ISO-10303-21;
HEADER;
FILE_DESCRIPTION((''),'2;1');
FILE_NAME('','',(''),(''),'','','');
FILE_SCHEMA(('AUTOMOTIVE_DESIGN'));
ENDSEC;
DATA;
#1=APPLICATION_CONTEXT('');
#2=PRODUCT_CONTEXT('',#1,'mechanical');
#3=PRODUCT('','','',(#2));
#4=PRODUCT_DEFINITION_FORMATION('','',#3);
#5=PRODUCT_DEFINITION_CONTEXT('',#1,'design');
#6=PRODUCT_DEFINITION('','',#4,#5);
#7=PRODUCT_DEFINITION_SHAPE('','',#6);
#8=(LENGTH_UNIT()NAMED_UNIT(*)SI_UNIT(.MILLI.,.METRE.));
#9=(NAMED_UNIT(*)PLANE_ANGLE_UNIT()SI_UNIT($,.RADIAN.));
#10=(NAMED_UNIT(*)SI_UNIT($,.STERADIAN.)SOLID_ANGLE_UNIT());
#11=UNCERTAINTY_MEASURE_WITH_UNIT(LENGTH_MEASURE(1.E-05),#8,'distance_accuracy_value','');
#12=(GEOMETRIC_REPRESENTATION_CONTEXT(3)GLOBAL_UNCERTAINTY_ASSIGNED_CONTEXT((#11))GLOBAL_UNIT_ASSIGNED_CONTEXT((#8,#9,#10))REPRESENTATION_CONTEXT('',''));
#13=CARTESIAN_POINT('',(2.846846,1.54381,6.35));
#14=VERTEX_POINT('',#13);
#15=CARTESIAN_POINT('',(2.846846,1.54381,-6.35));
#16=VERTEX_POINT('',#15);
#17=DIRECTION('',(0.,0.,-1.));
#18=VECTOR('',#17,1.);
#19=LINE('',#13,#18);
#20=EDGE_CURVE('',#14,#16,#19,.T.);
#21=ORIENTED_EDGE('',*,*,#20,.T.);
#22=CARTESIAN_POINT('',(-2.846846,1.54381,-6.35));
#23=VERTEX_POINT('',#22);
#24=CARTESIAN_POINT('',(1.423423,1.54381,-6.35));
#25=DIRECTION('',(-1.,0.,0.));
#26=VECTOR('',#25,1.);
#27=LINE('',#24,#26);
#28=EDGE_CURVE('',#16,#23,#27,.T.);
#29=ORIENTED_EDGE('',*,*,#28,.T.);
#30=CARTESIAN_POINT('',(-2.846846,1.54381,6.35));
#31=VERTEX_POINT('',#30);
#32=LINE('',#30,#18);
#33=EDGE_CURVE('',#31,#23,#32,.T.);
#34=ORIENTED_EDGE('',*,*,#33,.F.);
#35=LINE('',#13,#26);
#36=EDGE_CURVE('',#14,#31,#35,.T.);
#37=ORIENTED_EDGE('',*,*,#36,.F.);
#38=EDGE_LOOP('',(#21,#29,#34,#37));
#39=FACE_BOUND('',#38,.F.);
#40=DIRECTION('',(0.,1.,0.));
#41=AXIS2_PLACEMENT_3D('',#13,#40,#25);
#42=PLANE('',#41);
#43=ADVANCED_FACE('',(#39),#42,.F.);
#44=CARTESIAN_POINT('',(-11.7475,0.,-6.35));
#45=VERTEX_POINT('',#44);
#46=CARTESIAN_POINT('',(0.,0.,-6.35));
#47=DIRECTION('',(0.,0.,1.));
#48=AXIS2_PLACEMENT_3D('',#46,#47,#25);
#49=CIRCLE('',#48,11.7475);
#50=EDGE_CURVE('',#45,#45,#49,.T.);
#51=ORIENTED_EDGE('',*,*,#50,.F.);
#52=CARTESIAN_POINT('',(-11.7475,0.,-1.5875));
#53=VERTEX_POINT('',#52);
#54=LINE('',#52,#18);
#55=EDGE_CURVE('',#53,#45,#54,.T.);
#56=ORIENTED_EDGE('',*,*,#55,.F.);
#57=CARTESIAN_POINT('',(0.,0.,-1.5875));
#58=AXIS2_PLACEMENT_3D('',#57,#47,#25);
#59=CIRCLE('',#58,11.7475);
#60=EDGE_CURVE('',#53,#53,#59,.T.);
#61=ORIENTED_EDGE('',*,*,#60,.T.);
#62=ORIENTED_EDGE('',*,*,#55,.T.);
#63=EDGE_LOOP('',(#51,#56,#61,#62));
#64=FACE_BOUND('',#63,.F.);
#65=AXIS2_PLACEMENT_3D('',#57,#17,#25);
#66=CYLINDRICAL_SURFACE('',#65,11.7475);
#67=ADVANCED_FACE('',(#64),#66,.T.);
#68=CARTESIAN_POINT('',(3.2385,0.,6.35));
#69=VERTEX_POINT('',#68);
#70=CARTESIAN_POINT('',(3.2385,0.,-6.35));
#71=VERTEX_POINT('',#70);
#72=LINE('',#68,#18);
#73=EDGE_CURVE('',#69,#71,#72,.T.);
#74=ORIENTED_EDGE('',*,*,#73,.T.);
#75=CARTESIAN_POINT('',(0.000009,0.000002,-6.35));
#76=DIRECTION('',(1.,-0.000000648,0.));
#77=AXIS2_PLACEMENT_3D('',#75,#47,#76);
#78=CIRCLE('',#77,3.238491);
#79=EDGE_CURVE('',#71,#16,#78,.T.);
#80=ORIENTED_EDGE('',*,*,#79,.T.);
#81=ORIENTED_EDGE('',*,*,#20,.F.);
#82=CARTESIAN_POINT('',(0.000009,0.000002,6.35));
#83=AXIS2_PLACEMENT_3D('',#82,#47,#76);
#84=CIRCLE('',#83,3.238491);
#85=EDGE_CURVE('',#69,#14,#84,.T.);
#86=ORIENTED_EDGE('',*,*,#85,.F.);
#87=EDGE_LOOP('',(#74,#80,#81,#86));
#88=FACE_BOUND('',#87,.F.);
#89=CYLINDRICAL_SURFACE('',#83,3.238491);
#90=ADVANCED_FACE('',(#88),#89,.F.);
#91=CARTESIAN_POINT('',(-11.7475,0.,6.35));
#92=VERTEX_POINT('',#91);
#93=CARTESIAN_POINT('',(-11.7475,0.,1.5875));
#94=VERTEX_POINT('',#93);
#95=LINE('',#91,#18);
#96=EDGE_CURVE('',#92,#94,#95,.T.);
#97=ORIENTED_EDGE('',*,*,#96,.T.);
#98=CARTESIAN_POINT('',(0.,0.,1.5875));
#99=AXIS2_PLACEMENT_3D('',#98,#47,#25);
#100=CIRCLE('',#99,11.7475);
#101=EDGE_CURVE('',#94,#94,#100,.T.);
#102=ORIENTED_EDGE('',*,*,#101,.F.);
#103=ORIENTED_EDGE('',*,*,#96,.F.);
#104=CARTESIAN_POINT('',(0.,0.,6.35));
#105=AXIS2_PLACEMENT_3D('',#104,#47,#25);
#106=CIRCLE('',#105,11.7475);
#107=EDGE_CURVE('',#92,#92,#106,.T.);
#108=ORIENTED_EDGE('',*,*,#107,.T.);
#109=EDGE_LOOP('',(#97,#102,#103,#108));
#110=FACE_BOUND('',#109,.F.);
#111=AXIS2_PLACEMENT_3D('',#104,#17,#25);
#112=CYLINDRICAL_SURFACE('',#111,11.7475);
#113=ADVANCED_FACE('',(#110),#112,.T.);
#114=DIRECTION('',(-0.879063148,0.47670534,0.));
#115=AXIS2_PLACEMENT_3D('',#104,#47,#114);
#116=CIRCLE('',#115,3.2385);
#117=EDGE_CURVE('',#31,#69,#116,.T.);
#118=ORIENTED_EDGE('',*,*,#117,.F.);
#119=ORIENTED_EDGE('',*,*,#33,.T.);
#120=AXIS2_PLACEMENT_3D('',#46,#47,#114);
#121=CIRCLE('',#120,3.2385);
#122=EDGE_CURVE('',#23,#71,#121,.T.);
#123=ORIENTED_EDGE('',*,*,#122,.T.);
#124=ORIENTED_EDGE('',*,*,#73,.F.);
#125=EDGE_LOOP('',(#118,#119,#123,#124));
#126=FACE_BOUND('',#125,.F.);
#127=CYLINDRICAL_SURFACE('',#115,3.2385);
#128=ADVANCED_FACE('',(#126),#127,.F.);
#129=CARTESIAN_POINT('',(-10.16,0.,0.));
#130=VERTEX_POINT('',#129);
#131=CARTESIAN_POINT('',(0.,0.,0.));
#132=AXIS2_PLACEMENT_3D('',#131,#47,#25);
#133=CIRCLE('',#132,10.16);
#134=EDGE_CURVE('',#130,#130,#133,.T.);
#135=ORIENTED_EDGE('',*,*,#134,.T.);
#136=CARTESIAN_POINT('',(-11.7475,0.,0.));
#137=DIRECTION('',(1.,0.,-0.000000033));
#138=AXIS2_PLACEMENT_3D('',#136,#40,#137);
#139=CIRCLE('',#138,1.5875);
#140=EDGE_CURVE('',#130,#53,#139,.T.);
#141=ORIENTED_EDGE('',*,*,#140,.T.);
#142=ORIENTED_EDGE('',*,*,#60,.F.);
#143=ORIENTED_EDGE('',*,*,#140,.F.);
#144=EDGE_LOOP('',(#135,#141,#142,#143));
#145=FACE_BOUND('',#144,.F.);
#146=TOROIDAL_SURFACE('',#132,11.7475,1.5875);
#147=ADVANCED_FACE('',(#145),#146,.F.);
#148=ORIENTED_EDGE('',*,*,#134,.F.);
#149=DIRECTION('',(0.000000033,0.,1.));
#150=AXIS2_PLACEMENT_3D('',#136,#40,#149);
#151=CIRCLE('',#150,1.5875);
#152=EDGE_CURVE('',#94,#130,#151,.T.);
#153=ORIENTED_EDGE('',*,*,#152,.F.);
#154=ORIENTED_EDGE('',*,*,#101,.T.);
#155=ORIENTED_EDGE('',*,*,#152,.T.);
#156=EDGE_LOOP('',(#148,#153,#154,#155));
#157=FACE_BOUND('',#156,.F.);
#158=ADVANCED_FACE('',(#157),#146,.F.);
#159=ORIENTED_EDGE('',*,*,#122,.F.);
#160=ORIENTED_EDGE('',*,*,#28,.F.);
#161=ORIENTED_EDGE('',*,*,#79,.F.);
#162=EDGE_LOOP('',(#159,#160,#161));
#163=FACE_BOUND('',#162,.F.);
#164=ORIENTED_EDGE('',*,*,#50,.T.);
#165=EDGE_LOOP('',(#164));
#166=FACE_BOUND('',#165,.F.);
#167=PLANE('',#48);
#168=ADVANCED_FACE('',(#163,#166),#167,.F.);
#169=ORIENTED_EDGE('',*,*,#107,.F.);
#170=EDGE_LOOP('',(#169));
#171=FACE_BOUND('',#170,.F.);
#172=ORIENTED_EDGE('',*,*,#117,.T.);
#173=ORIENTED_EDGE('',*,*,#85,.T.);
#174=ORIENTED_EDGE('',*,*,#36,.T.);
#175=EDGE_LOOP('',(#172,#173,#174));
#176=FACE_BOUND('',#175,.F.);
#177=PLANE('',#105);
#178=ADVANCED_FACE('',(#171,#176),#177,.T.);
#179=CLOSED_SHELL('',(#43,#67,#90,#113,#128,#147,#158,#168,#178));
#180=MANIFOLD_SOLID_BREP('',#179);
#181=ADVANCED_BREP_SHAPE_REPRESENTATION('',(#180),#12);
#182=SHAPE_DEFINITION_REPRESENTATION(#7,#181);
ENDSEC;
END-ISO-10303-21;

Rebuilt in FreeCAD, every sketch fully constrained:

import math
import FreeCAD as App
import Part
import Sketcher
from FreeCAD import Vector
Q = App.Units.Quantity

doc = App.newDocument("Part")
body = doc.addObject("PartDesign::Body", "Body")

# Sketch on XZ plane
sketch1 = doc.addObject("Sketcher::SketchObject", "Sketch")
body.addObject(sketch1)
sketch1.AttachmentSupport = (doc.XZ_Plane, [""])
sketch1.MapMode = "FlatFace"
sketch1.addGeometry(Part.LineSegment(Vector(0, -6.35, 0), Vector(0, 6.35, 0)), False)
sketch1.addGeometry(Part.LineSegment(Vector(0, 6.35, 0), Vector(-11.7475, 6.35, 0)), False)
sketch1.addGeometry(Part.LineSegment(Vector(-11.7475, 6.35, 0), Vector(-11.7475, 1.5875, 0)), False)
sketch1.addGeometry(Part.ArcOfCircle(Part.Circle(Vector(-11.7475, 0, 0), Vector(0, 0, 1), 1.5875), math.radians(0.000002), math.radians(89.999998)), False)
sketch1.addGeometry(Part.ArcOfCircle(Part.Circle(Vector(-11.7475, 0, 0), Vector(0, 0, 1), 1.5875), math.radians(-89.999998), math.radians(-0.000002)), False)
sketch1.addGeometry(Part.LineSegment(Vector(-11.7475, -1.5875, 0), Vector(-11.7475, -6.35, 0)), False)
sketch1.addGeometry(Part.LineSegment(Vector(-11.7475, -6.35, 0), Vector(0, -6.35, 0)), False)
sketch1.addConstraint(Sketcher.Constraint("Coincident", 0, 2, 1, 1))
sketch1.addConstraint(Sketcher.Constraint("Coincident", 1, 2, 2, 1))
sketch1.addConstraint(Sketcher.Constraint("Coincident", 2, 2, 3, 2))
sketch1.addConstraint(Sketcher.Constraint("Tangent", 3, 1, 4, 2))
sketch1.addConstraint(Sketcher.Constraint("Coincident", 4, 1, 5, 1))
sketch1.addConstraint(Sketcher.Constraint("Coincident", 5, 2, 6, 1))
sketch1.addConstraint(Sketcher.Constraint("Coincident", 6, 2, 0, 1))
sketch1.addConstraint(Sketcher.Constraint("Vertical", 0))
sketch1.addConstraint(Sketcher.Constraint("Horizontal", 1))
sketch1.addConstraint(Sketcher.Constraint("Vertical", 2))
sketch1.addConstraint(Sketcher.Constraint("Vertical", 5))
sketch1.addConstraint(Sketcher.Constraint("Horizontal", 6))
sketch1.addConstraint(Sketcher.Constraint("Equal", 3, 4))
sketch1.addConstraint(Sketcher.Constraint("Symmetric", 0, 2, 6, 2, -1, 1))
sketch1.addConstraint(Sketcher.Constraint("Symmetric", 2, 2, 4, 1, -1))
sketch1.addConstraint(Sketcher.Constraint("PointOnObject", 3, 1, -1))
sketch1.addConstraint(Sketcher.Constraint("Vertical", 4, 3, 1, 2))
sketch1.addConstraint(Sketcher.Constraint("DistanceY", 0, 1, 0, 2, Q("0.5 in")))
sketch1.addConstraint(Sketcher.Constraint("Radius", 3, Q("0.0625 in")))
sketch1.addConstraint(Sketcher.Constraint("DistanceX", 3, 1, -1, 1, Q("0.4 in")))
revolution = doc.addObject("PartDesign::Revolution", "Revolution")
body.addObject(revolution)
revolution.Profile = sketch1
revolution.ReferenceAxis = (sketch1, ["V_Axis"])
revolution.Angle = 360

# Sketch on XY plane
sketch2 = doc.addObject("Sketcher::SketchObject", "Sketch001")
body.addObject(sketch2)
sketch2.AttachmentSupport = (doc.XY_Plane, [""])
sketch2.MapMode = "FlatFace"
sketch2.AttachmentOffset = App.Placement(Vector(0, 0, 0.25 * 25.4), App.Rotation())
sketch2.addGeometry(Part.ArcOfCircle(Part.Circle(Vector(0, 0, 0), Vector(0, 0, 1), 3.2385), math.radians(151.529557), math.radians(360.000004)), False)
sketch2.addGeometry(Part.ArcOfCircle(Part.Circle(Vector(0.000009, 0.000002, 0), Vector(0, 0, 1), 3.238491), math.radians(-0.000037), math.radians(28.470485)), False)
sketch2.addGeometry(Part.LineSegment(Vector(2.846846, 1.54381, 0), Vector(-2.846846, 1.54381, 0)), False)
sketch2.addConstraint(Sketcher.Constraint("Tangent", 0, 2, 1, 1))
sketch2.addConstraint(Sketcher.Constraint("Coincident", 1, 2, 2, 1))
sketch2.addConstraint(Sketcher.Constraint("Coincident", 2, 2, 0, 1))
sketch2.addConstraint(Sketcher.Constraint("Horizontal", 2))
sketch2.addConstraint(Sketcher.Constraint("Coincident", 0, 3, -1, 1))
sketch2.addConstraint(Sketcher.Constraint("PointOnObject", 0, 2, -1))
sketch2.addConstraint(Sketcher.Constraint("Radius", 0, Q("0.1275 in")))
sketch2.addConstraint(Sketcher.Constraint("Radius", 1, 3.238491))
sketch2.addConstraint(Sketcher.Constraint("DistanceX", 2, 2, 2, 1, 5.693692))
pocket1 = doc.addObject("PartDesign::Pocket", "Pocket")
body.addObject(pocket1)
pocket1.Profile = sketch2
pocket1.Type = "ThroughAll"

doc.recompute()
